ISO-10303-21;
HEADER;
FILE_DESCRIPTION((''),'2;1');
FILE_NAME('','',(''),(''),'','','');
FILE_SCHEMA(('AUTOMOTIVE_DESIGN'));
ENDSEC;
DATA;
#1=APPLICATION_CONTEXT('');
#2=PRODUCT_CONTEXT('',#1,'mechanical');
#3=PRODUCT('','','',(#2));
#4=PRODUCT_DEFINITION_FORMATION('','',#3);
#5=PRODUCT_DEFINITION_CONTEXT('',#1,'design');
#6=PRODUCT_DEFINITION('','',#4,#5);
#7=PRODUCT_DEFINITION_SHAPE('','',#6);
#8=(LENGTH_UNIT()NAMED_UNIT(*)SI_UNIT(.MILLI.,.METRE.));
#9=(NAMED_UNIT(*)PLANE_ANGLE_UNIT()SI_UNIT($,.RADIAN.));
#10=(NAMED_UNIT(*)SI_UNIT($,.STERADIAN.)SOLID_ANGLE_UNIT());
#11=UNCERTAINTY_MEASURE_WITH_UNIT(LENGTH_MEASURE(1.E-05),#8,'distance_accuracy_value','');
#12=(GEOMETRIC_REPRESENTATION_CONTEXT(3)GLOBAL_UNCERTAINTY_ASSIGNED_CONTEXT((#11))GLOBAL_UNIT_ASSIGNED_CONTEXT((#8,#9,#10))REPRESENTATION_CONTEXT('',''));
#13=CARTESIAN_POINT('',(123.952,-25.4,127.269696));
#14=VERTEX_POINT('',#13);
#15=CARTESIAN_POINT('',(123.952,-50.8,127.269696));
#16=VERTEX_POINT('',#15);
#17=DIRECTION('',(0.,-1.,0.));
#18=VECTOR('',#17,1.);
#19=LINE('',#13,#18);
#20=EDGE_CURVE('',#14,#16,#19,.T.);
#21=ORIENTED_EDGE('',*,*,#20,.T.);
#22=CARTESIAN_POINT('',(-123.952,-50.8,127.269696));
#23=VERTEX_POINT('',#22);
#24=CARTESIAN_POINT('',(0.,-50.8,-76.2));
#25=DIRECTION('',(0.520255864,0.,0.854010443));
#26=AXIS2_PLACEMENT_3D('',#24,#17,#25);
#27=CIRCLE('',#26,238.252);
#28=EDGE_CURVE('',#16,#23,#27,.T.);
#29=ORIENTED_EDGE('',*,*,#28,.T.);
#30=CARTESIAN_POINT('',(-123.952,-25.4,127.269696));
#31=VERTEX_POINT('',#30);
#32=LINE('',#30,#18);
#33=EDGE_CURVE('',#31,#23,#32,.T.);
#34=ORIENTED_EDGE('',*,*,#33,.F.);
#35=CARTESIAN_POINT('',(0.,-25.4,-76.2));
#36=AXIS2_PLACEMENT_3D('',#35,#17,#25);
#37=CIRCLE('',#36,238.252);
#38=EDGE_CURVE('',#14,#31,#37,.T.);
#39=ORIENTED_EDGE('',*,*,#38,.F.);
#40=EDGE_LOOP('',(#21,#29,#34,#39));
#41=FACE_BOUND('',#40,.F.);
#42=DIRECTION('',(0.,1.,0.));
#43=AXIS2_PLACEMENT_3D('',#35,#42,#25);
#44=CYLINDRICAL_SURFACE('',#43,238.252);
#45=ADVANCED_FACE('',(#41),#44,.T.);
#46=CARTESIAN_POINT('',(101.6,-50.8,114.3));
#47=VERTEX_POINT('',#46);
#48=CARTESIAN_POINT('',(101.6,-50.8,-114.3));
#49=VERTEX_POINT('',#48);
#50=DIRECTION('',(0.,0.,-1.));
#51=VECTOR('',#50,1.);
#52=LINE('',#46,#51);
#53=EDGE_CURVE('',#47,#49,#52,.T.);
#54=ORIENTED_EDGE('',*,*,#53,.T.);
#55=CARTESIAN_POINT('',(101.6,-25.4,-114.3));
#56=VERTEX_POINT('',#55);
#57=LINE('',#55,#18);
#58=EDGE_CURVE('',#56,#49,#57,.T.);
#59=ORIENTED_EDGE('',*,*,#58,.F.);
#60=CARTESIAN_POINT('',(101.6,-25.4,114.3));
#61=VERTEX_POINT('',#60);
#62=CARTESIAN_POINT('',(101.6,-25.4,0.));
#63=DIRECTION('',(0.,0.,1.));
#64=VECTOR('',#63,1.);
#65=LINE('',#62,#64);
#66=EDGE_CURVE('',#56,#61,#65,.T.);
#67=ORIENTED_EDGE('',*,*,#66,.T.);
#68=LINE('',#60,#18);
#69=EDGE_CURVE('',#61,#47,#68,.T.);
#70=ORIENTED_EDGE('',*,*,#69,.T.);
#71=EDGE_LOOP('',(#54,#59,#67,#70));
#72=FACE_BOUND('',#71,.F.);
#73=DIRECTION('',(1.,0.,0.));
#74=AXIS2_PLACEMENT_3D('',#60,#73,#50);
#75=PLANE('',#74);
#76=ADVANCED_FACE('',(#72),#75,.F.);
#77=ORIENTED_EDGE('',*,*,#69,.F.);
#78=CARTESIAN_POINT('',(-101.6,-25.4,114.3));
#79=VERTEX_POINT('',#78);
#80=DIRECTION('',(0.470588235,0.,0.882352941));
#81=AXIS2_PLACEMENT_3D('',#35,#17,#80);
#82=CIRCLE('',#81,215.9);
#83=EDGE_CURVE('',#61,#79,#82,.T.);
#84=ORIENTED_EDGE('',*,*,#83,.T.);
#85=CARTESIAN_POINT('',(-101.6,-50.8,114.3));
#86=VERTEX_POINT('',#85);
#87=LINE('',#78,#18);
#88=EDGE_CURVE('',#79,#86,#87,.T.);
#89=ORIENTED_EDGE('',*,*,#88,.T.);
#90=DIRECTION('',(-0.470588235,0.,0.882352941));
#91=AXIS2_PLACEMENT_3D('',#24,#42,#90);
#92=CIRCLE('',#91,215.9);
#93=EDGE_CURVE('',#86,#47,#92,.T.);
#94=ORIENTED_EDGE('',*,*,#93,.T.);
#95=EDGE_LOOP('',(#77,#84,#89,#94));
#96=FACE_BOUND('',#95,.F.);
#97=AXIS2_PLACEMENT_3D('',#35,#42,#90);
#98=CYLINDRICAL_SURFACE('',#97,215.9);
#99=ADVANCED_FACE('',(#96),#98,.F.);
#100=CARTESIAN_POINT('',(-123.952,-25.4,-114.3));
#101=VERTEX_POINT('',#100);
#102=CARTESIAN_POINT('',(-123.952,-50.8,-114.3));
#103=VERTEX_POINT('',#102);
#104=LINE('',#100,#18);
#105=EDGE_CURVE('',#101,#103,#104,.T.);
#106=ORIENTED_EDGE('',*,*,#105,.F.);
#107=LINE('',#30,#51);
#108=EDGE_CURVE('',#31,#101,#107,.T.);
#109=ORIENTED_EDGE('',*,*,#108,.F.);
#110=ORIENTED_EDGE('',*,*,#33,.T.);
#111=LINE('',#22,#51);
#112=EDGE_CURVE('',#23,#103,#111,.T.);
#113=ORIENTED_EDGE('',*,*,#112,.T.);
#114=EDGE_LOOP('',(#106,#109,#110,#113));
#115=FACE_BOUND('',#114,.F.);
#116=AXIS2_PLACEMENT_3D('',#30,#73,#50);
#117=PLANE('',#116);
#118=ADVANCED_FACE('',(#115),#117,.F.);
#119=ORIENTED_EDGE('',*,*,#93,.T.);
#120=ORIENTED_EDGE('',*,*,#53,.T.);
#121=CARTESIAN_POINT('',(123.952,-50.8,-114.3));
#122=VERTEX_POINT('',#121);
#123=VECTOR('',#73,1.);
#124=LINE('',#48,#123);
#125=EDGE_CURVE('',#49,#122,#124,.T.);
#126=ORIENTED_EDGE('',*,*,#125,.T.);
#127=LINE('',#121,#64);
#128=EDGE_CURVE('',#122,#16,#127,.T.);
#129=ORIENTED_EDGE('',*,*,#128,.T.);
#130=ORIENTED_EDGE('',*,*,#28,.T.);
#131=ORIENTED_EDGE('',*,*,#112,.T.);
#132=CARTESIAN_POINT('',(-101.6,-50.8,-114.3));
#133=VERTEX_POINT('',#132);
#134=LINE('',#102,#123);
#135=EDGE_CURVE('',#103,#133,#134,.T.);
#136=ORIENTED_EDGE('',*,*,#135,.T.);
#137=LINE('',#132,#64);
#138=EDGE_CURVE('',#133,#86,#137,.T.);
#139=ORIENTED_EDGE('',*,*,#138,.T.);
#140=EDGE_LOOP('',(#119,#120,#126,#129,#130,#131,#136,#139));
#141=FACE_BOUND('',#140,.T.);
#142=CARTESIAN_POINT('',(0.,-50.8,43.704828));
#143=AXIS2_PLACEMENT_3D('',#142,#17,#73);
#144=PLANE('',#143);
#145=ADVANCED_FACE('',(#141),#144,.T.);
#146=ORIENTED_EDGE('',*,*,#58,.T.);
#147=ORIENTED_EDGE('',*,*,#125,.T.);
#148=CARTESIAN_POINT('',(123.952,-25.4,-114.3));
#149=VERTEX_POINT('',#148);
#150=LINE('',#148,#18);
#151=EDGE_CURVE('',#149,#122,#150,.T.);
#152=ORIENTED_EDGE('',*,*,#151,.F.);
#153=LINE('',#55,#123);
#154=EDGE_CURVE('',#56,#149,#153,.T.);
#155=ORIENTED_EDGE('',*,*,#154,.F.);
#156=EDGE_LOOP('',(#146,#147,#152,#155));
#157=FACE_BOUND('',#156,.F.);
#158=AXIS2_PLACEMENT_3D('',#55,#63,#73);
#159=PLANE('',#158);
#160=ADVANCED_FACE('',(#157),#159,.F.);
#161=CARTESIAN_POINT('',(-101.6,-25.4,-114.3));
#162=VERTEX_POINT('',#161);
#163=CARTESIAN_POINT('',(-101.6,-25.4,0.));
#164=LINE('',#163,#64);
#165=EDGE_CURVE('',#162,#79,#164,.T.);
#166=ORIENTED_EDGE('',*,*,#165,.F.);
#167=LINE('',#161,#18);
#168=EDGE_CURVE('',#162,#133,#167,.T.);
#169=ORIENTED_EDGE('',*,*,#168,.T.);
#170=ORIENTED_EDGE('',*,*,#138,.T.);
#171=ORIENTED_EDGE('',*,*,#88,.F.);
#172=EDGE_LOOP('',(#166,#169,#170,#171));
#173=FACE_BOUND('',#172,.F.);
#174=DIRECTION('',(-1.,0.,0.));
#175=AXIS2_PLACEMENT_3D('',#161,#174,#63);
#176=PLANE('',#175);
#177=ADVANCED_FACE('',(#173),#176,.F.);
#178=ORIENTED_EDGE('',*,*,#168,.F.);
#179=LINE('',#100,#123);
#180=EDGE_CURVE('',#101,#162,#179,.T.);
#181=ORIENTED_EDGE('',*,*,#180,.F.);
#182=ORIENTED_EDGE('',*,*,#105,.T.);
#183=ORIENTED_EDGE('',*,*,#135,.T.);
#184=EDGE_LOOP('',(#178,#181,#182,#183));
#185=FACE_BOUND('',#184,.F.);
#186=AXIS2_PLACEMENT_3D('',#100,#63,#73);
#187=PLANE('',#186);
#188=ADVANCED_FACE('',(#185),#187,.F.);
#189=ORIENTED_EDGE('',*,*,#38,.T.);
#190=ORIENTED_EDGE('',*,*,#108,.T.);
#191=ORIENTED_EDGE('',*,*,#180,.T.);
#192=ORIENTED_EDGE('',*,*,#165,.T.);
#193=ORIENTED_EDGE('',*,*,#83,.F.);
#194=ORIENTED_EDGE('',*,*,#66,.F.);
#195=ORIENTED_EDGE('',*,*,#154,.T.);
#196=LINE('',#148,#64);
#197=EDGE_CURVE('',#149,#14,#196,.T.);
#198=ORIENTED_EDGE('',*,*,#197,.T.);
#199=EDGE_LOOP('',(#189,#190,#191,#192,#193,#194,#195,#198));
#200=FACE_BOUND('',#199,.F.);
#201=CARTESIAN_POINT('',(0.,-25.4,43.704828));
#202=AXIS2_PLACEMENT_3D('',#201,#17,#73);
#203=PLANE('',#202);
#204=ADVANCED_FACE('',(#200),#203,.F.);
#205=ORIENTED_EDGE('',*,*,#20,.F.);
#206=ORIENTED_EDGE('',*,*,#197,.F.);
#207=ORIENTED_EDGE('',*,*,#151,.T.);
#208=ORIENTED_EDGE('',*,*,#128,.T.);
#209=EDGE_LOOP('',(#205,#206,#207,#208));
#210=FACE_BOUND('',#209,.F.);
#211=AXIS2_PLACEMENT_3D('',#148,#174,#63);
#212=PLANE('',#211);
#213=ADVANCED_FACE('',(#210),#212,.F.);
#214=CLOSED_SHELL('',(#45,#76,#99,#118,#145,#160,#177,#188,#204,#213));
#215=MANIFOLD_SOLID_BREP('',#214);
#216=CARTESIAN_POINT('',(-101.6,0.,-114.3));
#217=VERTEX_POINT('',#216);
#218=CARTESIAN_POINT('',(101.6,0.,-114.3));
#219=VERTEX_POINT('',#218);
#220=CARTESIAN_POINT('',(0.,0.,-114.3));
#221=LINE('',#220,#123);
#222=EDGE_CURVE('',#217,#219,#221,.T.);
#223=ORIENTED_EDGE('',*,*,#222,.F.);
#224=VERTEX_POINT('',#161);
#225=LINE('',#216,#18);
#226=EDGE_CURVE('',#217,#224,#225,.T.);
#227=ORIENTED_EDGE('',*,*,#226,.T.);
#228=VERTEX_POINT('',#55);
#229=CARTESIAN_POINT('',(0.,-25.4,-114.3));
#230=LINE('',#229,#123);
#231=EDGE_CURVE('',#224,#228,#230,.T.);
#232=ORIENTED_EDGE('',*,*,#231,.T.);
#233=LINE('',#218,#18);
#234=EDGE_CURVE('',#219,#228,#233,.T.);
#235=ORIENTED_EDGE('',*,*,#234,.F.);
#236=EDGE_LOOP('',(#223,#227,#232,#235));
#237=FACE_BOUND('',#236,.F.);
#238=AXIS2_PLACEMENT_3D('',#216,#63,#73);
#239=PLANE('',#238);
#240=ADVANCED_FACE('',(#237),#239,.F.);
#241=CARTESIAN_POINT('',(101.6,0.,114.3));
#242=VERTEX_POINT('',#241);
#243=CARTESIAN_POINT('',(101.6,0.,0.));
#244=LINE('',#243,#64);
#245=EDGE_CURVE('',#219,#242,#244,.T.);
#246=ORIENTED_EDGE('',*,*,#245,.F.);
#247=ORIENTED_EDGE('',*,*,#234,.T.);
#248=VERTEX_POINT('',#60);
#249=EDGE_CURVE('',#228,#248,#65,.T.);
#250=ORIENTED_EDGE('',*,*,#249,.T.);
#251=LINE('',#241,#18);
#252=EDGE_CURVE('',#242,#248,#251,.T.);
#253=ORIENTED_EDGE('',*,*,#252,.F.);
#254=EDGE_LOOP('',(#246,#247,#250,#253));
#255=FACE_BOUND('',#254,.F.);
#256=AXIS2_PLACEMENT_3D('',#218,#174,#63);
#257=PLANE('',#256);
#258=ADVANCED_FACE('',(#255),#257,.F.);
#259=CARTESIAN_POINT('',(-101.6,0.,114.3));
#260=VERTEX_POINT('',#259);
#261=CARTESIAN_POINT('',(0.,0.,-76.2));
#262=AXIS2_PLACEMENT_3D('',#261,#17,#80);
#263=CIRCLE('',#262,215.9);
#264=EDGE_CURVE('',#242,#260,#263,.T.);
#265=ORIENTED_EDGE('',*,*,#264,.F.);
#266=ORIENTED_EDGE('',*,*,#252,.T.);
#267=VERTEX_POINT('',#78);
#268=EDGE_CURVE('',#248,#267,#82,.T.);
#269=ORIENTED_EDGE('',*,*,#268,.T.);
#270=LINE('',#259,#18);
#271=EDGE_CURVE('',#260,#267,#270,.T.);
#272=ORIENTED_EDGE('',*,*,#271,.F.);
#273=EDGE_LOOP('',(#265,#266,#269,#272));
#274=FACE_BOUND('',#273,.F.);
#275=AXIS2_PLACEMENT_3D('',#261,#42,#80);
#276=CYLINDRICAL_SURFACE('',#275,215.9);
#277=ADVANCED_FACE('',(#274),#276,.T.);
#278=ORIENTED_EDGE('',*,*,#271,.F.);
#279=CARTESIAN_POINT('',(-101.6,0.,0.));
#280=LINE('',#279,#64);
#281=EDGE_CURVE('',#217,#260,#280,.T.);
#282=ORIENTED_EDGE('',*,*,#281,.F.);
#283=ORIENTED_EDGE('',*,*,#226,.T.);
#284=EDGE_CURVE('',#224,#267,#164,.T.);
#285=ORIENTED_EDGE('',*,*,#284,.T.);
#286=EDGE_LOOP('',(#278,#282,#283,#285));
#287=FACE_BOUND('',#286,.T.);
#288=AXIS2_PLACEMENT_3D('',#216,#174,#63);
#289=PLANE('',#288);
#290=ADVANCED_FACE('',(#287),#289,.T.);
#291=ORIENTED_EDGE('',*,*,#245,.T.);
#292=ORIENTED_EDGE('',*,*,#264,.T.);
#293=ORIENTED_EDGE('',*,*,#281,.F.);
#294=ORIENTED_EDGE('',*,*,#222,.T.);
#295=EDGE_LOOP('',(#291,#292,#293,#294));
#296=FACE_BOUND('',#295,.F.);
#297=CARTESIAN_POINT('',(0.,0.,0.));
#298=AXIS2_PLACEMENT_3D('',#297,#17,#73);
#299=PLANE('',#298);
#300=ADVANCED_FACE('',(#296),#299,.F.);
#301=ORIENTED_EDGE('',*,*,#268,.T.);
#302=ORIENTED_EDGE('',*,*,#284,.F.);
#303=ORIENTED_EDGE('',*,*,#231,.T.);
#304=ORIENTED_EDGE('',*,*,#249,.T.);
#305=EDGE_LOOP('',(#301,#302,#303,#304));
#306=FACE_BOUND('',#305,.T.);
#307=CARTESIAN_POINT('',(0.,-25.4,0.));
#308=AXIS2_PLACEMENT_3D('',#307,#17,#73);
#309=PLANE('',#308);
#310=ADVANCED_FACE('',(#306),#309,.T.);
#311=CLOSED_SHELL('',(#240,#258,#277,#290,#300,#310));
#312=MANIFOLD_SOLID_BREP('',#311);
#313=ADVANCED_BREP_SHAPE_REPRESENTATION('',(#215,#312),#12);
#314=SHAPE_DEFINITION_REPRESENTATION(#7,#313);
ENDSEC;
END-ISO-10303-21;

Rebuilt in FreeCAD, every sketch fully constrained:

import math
import FreeCAD as App
import Part
import Sketcher
from FreeCAD import Vector
Q = App.Units.Quantity

doc = App.newDocument("Part")
params = doc.addObject("Spreadsheet::Sheet", "Params")
for row, (alias, value) in enumerate([
    ("sketch1_radius", "8.5 in"),
    ("sketch1_width", "8 in"),
    ("sketch1_height", "9 in"),
    ("pad1_length", "1 in"),
    ("sketch2_radius", "8.5 in"),
    ("sketch2_height", "9 in"),
    ("sketch2_radius2", "9.38 in"),
    ("sketch2_width", "0.88 in"),
    ("pad2_length", "1 in"),
], start=1):
    params.set(f"A{row}", alias)
    params.set(f"B{row}", "=" + value)
    params.setAlias(f"B{row}", alias)

body = doc.addObject("PartDesign::Body", "Body")
body.AllowCompound = True

sketch1 = body.newObject("Sketcher::SketchObject", "Sketch")
sketch1.AttachmentSupport = (doc.getObject("XZ_Plane"), [""])
sketch1.MapMode = "FlatFace"
sketch1.addGeometry(Part.LineSegment(Vector(-102, 114, 0), Vector(-102, -114, 0)), False)
sketch1.addGeometry(Part.LineSegment(Vector(-102, -114, 0), Vector(102, -114, 0)), False)
sketch1.addGeometry(Part.LineSegment(Vector(102, -114, 0), Vector(102, 114, 0)), False)
sketch1.addGeometry(Part.ArcOfCircle(Part.Circle(Vector(0, -76, 0), Vector(0, 0, 1), 216), math.radians(62), math.radians(118)), False)
sketch1.addConstraint(Sketcher.Constraint("Coincident", 0, 2, 1, 1))
sketch1.addConstraint(Sketcher.Constraint("Coincident", 1, 2, 2, 1))
sketch1.addConstraint(Sketcher.Constraint("Coincident", 2, 2, 3, 1))
sketch1.addConstraint(Sketcher.Constraint("Coincident", 3, 2, 0, 1))
sketch1.addConstraint(Sketcher.Constraint("Vertical", 0))
sketch1.addConstraint(Sketcher.Constraint("Horizontal", 1))
sketch1.addConstraint(Sketcher.Constraint("Vertical", 2))
sketch1.addConstraint(Sketcher.Constraint("Symmetric", 0, 2, 2, 2, -1, 1))
sketch1.addConstraint(Sketcher.Constraint("PointOnObject", 3, 3, -2))
sketch1.addConstraint(Sketcher.Constraint("Radius", 3, Q("8.5 in")))
sketch1.addConstraint(Sketcher.Constraint("DistanceX", 1, 1, 1, 2, Q("8 in")))
sketch1.addConstraint(Sketcher.Constraint("DistanceY", 0, 2, 0, 1, Q("9 in")))
sketch1.setExpression("Constraints[9]", "Params.sketch1_radius")
sketch1.setExpression("Constraints[10]", "Params.sketch1_width")
sketch1.setExpression("Constraints[11]", "Params.sketch1_height")
pad1 = body.newObject("PartDesign::Pad", "Pad")
pad1.Profile = sketch1
pad1.setExpression("Length", "Params.pad1_length")

sketch2 = body.newObject("Sketcher::SketchObject", "Sketch001")
sketch2.AttachmentSupport = (doc.getObject("XZ_Plane"), [""])
sketch2.MapMode = "FlatFace"
sketch2.AttachmentOffset = App.Placement(Vector(0, 0, 1 * 25.4), App.Rotation())
sketch2.addGeometry(Part.ArcOfCircle(Part.Circle(Vector(0, -76, 0), Vector(0, 0, 1), 238), math.radians(59), math.radians(121)), False)
sketch2.addGeometry(Part.LineSegment(Vector(-124, 127, 0), Vector(-124, -114, 0)), False)
sketch2.addGeometry(Part.LineSegment(Vector(-124, -114, 0), Vector(-102, -114, 0)), False)
sketch2.addGeometry(Part.LineSegment(Vector(-102, -114, 0), Vector(-102, 114, 0)), False)
sketch2.addGeometry(Part.ArcOfCircle(Part.Circle(Vector(0, -76, 0), Vector(0, 0, 1), 216), math.radians(62), math.radians(118)), False)
sketch2.addGeometry(Part.LineSegment(Vector(102, 114, 0), Vector(102, -114, 0)), False)
sketch2.addGeometry(Part.LineSegment(Vector(102, -114, 0), Vector(124, -114, 0)), False)
sketch2.addGeometry(Part.LineSegment(Vector(124, -114, 0), Vector(124, 127, 0)), False)
sketch2.addConstraint(Sketcher.Constraint("Coincident", 0, 2, 1, 1))
sketch2.addConstraint(Sketcher.Constraint("Coincident", 1, 2, 2, 1))
sketch2.addConstraint(Sketcher.Constraint("Coincident", 2, 2, 3, 1))
sketch2.addConstraint(Sketcher.Constraint("Coincident", 3, 2, 4, 2))
sketch2.addConstraint(Sketcher.Constraint("Coincident", 4, 1, 5, 1))
sketch2.addConstraint(Sketcher.Constraint("Coincident", 5, 2, 6, 1))
sketch2.addConstraint(Sketcher.Constraint("Coincident", 6, 2, 7, 1))
sketch2.addConstraint(Sketcher.Constraint("Coincident", 7, 2, 0, 1))
sketch2.addConstraint(Sketcher.Constraint("Vertical", 1))
sketch2.addConstraint(Sketcher.Constraint("Horizontal", 2))
sketch2.addConstraint(Sketcher.Constraint("Vertical", 3))
sketch2.addConstraint(Sketcher.Constraint("Vertical", 5))
sketch2.addConstraint(Sketcher.Constraint("Horizontal", 6))
sketch2.addConstraint(Sketcher.Constraint("Vertical", 7))
sketch2.addConstraint(Sketcher.Constraint("Coincident", 4, 3, 0, 3))
sketch2.addConstraint(Sketcher.Constraint("Symmetric", 2, 2, 4, 1, -1, 1))
sketch2.addConstraint(Sketcher.Constraint("Symmetric", 1, 2, 6, 2, -2))
sketch2.addConstraint(Sketcher.Constraint("PointOnObject", 0, 3, -2))
sketch2.addConstraint(Sketcher.Constraint("Radius", 4, Q("8.5 in")))
sketch2.addConstraint(Sketcher.Constraint("DistanceY", 3, 1, 3, 2, Q("9 in")))
sketch2.addConstraint(Sketcher.Constraint("Radius", 0, Q("9.38 in")))
sketch2.addConstraint(Sketcher.Constraint("DistanceY", 0, 3, -1, 1, Q("3 in")))
sketch2.addConstraint(Sketcher.Constraint("DistanceX", 2, 1, 2, 2, Q("0.88 in")))
sketch2.setExpression("Constraints[18]", "Params.sketch2_radius")
sketch2.setExpression("Constraints[19]", "Params.sketch2_height")
sketch2.setExpression("Constraints[20]", "Params.sketch2_radius2")
sketch2.setExpression("Constraints[22]", "Params.sketch2_width")
pad2 = body.newObject("PartDesign::Pad", "Pad001")
pad2.Profile = sketch2
pad2.setExpression("Length", "Params.pad2_length")

doc.recompute()
